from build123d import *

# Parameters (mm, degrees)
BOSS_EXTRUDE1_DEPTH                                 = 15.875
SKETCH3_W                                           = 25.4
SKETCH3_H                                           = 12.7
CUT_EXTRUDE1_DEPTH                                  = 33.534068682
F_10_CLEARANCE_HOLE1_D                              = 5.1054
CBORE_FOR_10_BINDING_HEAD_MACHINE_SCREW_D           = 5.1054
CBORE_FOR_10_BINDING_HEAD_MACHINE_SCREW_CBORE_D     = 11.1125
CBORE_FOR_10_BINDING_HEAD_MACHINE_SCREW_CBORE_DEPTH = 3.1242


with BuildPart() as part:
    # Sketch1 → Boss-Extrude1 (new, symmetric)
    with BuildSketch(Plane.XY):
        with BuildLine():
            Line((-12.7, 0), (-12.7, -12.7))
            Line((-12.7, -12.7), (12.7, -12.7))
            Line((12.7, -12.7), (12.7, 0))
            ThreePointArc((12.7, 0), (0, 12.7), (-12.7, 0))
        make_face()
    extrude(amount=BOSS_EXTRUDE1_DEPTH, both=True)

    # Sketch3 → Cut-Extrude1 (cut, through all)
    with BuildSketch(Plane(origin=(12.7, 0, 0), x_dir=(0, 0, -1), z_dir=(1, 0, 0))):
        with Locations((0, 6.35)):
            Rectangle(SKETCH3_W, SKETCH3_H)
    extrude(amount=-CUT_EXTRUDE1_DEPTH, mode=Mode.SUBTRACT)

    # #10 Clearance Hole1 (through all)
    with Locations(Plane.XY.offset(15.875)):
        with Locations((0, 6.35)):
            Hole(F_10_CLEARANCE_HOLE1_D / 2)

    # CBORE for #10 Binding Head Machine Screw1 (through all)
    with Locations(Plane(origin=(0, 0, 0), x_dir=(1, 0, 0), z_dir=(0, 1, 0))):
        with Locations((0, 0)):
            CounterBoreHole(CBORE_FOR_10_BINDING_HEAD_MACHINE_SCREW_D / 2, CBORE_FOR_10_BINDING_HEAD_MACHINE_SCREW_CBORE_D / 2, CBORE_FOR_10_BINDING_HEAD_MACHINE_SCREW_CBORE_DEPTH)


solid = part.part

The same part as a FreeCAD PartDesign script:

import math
import FreeCAD as App
import Part
import Sketcher
from FreeCAD import Vector
Q = App.Units.Quantity

doc = App.newDocument("Part")
params = doc.addObject("Spreadsheet::Sheet", "Params")
for row, (alias, value) in enumerate([
    ("sketch1_radius", "0.5 in"),
    ("sketch1_height", "0.5 in"),
    ("pad1_length", "1.25 in"),
    ("sketch2_height", "1 in"),
    ("sketch2_width", "0.5 in"),
    ("sketch3_diameter", "0.201 in"),
    ("hole_diameter", "0.201 in"),
    ("sketch4_diameter", "0.201 in"),
    ("hole2_diameter", "0.201 in"),
    ("hole2_cbore_diameter", "0.4375 in"),
    ("hole2_cbore_depth", "0.123 in"),
], start=1):
    params.set(f"A{row}", alias)
    params.set(f"B{row}", "=" + value)
    params.setAlias(f"B{row}", alias)

body = doc.addObject("PartDesign::Body", "Body")

sketch1 = body.newObject("Sketcher::SketchObject", "Sketch")
sketch1.AttachmentSupport = (doc.getObject("XY_Plane"), [""])
sketch1.MapMode = "FlatFace"
sketch1.addGeometry(Part.LineSegment(Vector(-12.7, 0, 0), Vector(-12.7, -12.7, 0)), False)
sketch1.addGeometry(Part.LineSegment(Vector(-12.7, -12.7, 0), Vector(12.7, -12.7, 0)), False)
sketch1.addGeometry(Part.LineSegment(Vector(12.7, -12.7, 0), Vector(12.7, 0, 0)), False)
sketch1.addGeometry(Part.ArcOfCircle(Part.Circle(Vector(0, 0, 0), Vector(0, 0, 1), 12.7), math.radians(0), math.radians(180)), False)
sketch1.addConstraint(Sketcher.Constraint("Coincident", 0, 2, 1, 1))
sketch1.addConstraint(Sketcher.Constraint("Coincident", 1, 2, 2, 1))
sketch1.addConstraint(Sketcher.Constraint("Tangent", 2, 2, 3, 1))
sketch1.addConstraint(Sketcher.Constraint("Tangent", 3, 2, 0, 1))
sketch1.addConstraint(Sketcher.Constraint("Vertical", 0))
sketch1.addConstraint(Sketcher.Constraint("Horizontal", 1))
sketch1.addConstraint(Sketcher.Constraint("Vertical", 2))
sketch1.addConstraint(Sketcher.Constraint("Coincident", 3, 3, -1, 1))
sketch1.addConstraint(Sketcher.Constraint("Radius", 3, Q("0.5 in")))
sketch1.addConstraint(Sketcher.Constraint("DistanceY", 0, 2, 0, 1, Q("0.5 in")))
sketch1.setExpression("Constraints[8]", "Params.sketch1_radius")
sketch1.setExpression("Constraints[9]", "Params.sketch1_height")
pad1 = body.newObject("PartDesign::Pad", "Pad")
pad1.Profile = sketch1
pad1.setExpression("Length", "Params.pad1_length")
pad1.Midplane = True

sketch2 = body.newObject("Sketcher::SketchObject", "Sketch001")
sketch2.AttachmentSupport = (doc.getObject("YZ_Plane"), [""])
sketch2.MapMode = "FlatFace"
sketch2.AttachmentOffset = App.Placement(Vector(0, 0, 0.5 * 25.4), App.Rotation())
sketch2.addGeometry(Part.LineSegment(Vector(12.7, 12.7, 0), Vector(0, 12.7, 0)), False)
sketch2.addGeometry(Part.LineSegment(Vector(0, 12.7, 0), Vector(0, -12.7, 0)), False)
sketch2.addGeometry(Part.LineSegment(Vector(0, -12.7, 0), Vector(12.7, -12.7, 0)), False)
sketch2.addGeometry(Part.LineSegment(Vector(12.7, -12.7, 0), Vector(12.7, 12.7, 0)), False)
sketch2.addConstraint(Sketcher.Constraint("Coincident", 0, 2, 1, 1))
sketch2.addConstraint(Sketcher.Constraint("Coincident", 1, 2, 2, 1))
sketch2.addConstraint(Sketcher.Constraint("Coincident", 2, 2, 3, 1))
sketch2.addConstraint(Sketcher.Constraint("Coincident", 3, 2, 0, 1))
sketch2.addConstraint(Sketcher.Constraint("Horizontal", 0))
sketch2.addConstraint(Sketcher.Constraint("Vertical", 1))
sketch2.addConstraint(Sketcher.Constraint("Horizontal", 2))
sketch2.addConstraint(Sketcher.Constraint("Vertical", 3))
sketch2.addConstraint(Sketcher.Constraint("Symmetric", 0, 2, 1, 2, -1, 1))
sketch2.addConstraint(Sketcher.Constraint("DistanceY", 1, 2, 1, 1, Q("1 in")))
sketch2.addConstraint(Sketcher.Constraint("DistanceX", 0, 2, 0, 1, Q("0.5 in")))
sketch2.setExpression("Constraints[9]", "Params.sketch2_height")
sketch2.setExpression("Constraints[10]", "Params.sketch2_width")
pocket1 = body.newObject("PartDesign::Pocket", "Pocket")
pocket1.Profile = sketch2
pocket1.Type = "ThroughAll"

sketch3 = body.newObject("Sketcher::SketchObject", "Sketch002")
sketch3.AttachmentSupport = (doc.getObject("XY_Plane"), [""])
sketch3.MapMode = "FlatFace"
sketch3.AttachmentOffset = App.Placement(Vector(0, 0, 0.625 * 25.4), App.Rotation())
sketch3.addGeometry(Part.Circle(Vector(0, 6.35, 0), Vector(0, 0, 1), 2.5527), False)
sketch3.addConstraint(Sketcher.Constraint("PointOnObject", 0, 3, -2))
sketch3.addConstraint(Sketcher.Constraint("Diameter", 0, Q("0.201 in")))
sketch3.addConstraint(Sketcher.Constraint("DistanceY", -1, 1, 0, 3, Q("0.25 in")))
sketch3.setExpression("Constraints[1]", "Params.sketch3_diameter")
doc.recompute()
hole = body.newObject("PartDesign::Hole", "Hole")
hole.Profile = sketch3
hole.ThreadType = "None"
hole.setExpression("Diameter", "Params.hole_diameter")
hole.DepthType = "ThroughAll"

sketch4 = body.newObject("Sketcher::SketchObject", "Sketch003")
sketch4.AttachmentSupport = (doc.getObject("XZ_Plane"), [""])
sketch4.MapMode = "FlatFace"
sketch4.addGeometry(Part.Circle(Vector(0, 0, 0), Vector(0, 0, 1), 2.5527), False)
sketch4.addConstraint(Sketcher.Constraint("Coincident", 0, 3, -1, 1))
sketch4.addConstraint(Sketcher.Constraint("Diameter", 0, Q("0.201 in")))
sketch4.setExpression("Constraints[1]", "Params.sketch4_diameter")
doc.recompute()
hole2 = body.newObject("PartDesign::Hole", "Hole001")
hole2.Profile = sketch4
hole2.ThreadType = "None"
hole2.setExpression("Diameter", "Params.hole2_diameter")
hole2.DepthType = "ThroughAll"
hole2.HoleCutType = "Counterbore"
hole2.setExpression("HoleCutDiameter", "Params.hole2_cbore_diameter")
hole2.setExpression("HoleCutDepth", "Params.hole2_cbore_depth")
hole2.Reversed = True

doc.recompute()
